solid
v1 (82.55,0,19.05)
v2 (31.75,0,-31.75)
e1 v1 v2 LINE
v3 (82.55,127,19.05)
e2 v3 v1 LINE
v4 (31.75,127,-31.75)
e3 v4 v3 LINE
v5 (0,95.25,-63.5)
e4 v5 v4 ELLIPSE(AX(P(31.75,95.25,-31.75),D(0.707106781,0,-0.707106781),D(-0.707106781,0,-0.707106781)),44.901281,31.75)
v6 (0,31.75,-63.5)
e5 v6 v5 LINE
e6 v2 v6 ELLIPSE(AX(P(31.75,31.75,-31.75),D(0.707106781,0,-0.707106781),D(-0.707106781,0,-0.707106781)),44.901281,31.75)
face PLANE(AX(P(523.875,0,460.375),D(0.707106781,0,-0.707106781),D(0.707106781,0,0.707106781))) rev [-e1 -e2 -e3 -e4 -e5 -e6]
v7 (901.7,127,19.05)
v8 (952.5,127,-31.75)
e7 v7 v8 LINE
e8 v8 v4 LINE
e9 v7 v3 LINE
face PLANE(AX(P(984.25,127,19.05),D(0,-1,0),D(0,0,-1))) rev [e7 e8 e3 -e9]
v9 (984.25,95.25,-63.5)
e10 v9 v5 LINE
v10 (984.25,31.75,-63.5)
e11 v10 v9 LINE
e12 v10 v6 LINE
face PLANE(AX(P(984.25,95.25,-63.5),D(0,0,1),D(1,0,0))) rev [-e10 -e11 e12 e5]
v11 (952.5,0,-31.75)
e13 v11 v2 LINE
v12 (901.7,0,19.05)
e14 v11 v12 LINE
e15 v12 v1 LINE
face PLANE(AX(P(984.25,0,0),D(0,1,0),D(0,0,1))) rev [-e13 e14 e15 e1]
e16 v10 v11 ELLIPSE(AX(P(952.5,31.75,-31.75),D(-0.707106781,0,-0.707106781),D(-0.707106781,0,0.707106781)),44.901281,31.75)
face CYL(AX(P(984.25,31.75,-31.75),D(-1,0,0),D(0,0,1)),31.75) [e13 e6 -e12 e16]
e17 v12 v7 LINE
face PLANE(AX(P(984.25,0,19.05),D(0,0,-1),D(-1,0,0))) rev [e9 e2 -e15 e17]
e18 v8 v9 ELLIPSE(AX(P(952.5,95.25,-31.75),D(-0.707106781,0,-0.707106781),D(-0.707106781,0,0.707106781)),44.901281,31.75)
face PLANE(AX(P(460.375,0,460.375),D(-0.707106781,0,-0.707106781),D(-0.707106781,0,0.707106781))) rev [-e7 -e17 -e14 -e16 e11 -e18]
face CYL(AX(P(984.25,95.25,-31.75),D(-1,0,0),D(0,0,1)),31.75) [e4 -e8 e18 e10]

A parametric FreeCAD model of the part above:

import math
import FreeCAD as App
import Part
import Sketcher

V = App.Vector
Q = App.Units.Quantity

doc = App.newDocument("Part")
body = doc.addObject("PartDesign::Body", "Body")

# Sketch on YZ plane
sketch1 = body.newObject("Sketcher::SketchObject", "Sketch")
sketch1.AttachmentSupport = (doc.getObject("YZ_Plane"), [""])
sketch1.MapMode = "FlatFace"
sketch1.addGeometry([
    Part.ArcOfCircle(Part.Circle(V(32, -32, 0), V(0, 0, 1), 32), math.radians(180), math.radians(270)),  # 0
    Part.LineSegment(V(32, -64, 0), V(95, -64, 0)),  # 1
    Part.ArcOfCircle(Part.Circle(V(95, -32, 0), V(0, 0, 1), 32), math.radians(-90), math.radians(0)),  # 2
    Part.LineSegment(V(127, -32, 0), V(127, 19, 0)),  # 3
    Part.LineSegment(V(127, 19, 0), V(0, 19, 0)),  # 4
    Part.LineSegment(V(0, 19, 0), V(0, -32, 0)),  # 5
], False)
sketch1.addConstraint([
    Sketcher.Constraint("Tangent", 0, 2, 1, 1),
    Sketcher.Constraint("Tangent", 1, 2, 2, 1),
    Sketcher.Constraint("Tangent", 2, 2, 3, 1),
    Sketcher.Constraint("Coincident", 3, 2, 4, 1),
    Sketcher.Constraint("Coincident", 4, 2, 5, 1),
    Sketcher.Constraint("Tangent", 5, 2, 0, 1),
    Sketcher.Constraint("Horizontal", 1),
    Sketcher.Constraint("Vertical", 3),
    Sketcher.Constraint("Horizontal", 4),
    Sketcher.Constraint("Vertical", 5),
    Sketcher.Constraint("Equal", 0, 2),
    Sketcher.Constraint("PointOnObject", 4, 2, -2),
    Sketcher.Constraint("DistanceX", 4, 2, 4, 1, Q("5 in")),
    Sketcher.Constraint("DistanceY", 3, 1, 3, 2, Q("2 in")),
    Sketcher.Constraint("Radius", 0, Q("1.25 in")),
    Sketcher.Constraint("DistanceY", 0, 2, -1, 1, Q("2.5 in")),
])
pad1 = body.newObject("PartDesign::Pad", "Pad")
pad1.Profile = sketch1
pad1.Length = Q("38.75 in")

# Sketch on an angled plane
sketch2 = body.newObject("Sketcher::SketchObject", "Sketch001")
sketch2.Placement = App.Placement(V(460.375, 0, 460.375), App.Rotation(V(0, 1, 0), V(-0.707106781, 0, 0.707106781), V(0.707106781, 0, 0.707106781), "ZXY"))
sketch2.addGeometry([
    Part.LineSegment(V(-139, -433, 0), V(-139, -926, 0)),
    Part.LineSegment(V(-139, -926, 0), V(205, -926, 0)),
    Part.LineSegment(V(205, -926, 0), V(205, -433, 0)),
    Part.LineSegment(V(205, -433, 0), V(-139, -433, 0)),
], False)
sketch2.addConstraint([
    Sketcher.Constraint("Coincident", 0, 2, 1, 1),
    Sketcher.Constraint("Coincident", 1, 2, 2, 1),
    Sketcher.Constraint("Coincident", 2, 2, 3, 1),
    Sketcher.Constraint("Coincident", 3, 2, 0, 1),
    Sketcher.Constraint("Vertical", 0),
    Sketcher.Constraint("Horizontal", 1),
    Sketcher.Constraint("Vertical", 2),
    Sketcher.Constraint("Horizontal", 3),
    Sketcher.Constraint("DistanceX", 1, 1, 1, 2, 344.402502),
    Sketcher.Constraint("DistanceY", 0, 2, 0, 1, 493.213132),
    Sketcher.Constraint("DistanceX", 0, 2, -1, 1, 139.206091),
    Sketcher.Constraint("DistanceY", 0, 2, -1, 1, 926.287459),
])
pocket1 = body.newObject("PartDesign::Pocket", "Pocket")
pocket1.Profile = sketch2
pocket1.Type = "ThroughAll"
pocket1.Reversed = True
doc.recompute()

datumplane = body.newObject("PartDesign::Plane", "DatumPlane")
datumplane.AttachmentSupport = (doc.getObject("YZ_Plane"), [""])
datumplane.MapMode = "FlatFace"
datumplane.AttachmentOffset = App.Placement(V(0, 0, 19.375 * 25.4), App.Rotation())
mirrored = body.newObject("PartDesign::Mirrored", "Mirrored")
mirrored.Originals = [pocket1]
mirrored.MirrorPlane = (datumplane, [""])
body.Tip = mirrored

doc.recompute()
